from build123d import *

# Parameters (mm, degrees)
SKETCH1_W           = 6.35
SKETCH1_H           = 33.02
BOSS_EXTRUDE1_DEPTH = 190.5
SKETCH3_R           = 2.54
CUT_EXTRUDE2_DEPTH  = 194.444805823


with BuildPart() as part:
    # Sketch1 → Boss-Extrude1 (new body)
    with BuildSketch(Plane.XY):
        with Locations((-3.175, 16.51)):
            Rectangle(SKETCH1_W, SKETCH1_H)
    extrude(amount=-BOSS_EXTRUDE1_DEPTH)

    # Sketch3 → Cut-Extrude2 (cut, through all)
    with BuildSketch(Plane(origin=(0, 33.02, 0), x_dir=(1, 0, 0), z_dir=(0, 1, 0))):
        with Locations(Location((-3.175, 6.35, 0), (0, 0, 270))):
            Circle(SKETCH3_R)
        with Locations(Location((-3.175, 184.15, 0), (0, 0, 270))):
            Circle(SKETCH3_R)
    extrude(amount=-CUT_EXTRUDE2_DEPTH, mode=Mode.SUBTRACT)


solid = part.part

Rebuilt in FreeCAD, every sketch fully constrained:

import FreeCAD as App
import Part
import Sketcher

V = App.Vector
Q = App.Units.Quantity

doc = App.newDocument("Part")
body = doc.addObject("PartDesign::Body", "Body")

sketch1 = body.newObject("Sketcher::SketchObject", "Sketch")
sketch1.AttachmentSupport = (doc.getObject("XY_Plane"), [""])
sketch1.MapMode = "FlatFace"
sketch1.addGeometry([
    Part.LineSegment(V(-6, 33, 0), V(-6, 0, 0)),
    Part.LineSegment(V(-6, 0, 0), V(0, 0, 0)),
    Part.LineSegment(V(0, 0, 0), V(0, 33, 0)),
    Part.LineSegment(V(0, 33, 0), V(-6, 33, 0)),
], False)
sketch1.addConstraint([
    Sketcher.Constraint("Coincident", 0, 2, 1, 1),
    Sketcher.Constraint("Coincident", 1, 2, 2, 1),
    Sketcher.Constraint("Coincident", 2, 2, 3, 1),
    Sketcher.Constraint("Coincident", 3, 2, 0, 1),
    Sketcher.Constraint("Vertical", 0),
    Sketcher.Constraint("Horizontal", 1),
    Sketcher.Constraint("Vertical", 2),
    Sketcher.Constraint("Horizontal", 3),
    Sketcher.Constraint("Coincident", 1, 2, -1, 1),
    Sketcher.Constraint("DistanceY", 0, 2, 0, 1, Q("1.3 in")),
    Sketcher.Constraint("DistanceX", 1, 1, 1, 2, Q("0.25 in")),
])
pad1 = body.newObject("PartDesign::Pad", "Pad")
pad1.Profile = sketch1
pad1.Length = Q("7.5 in")
pad1.Reversed = True

sketch2 = body.newObject("Sketcher::SketchObject", "Sketch001")
sketch2.AttachmentSupport = (doc.getObject("XZ_Plane"), [""])
sketch2.MapMode = "FlatFace"
sketch2.AttachmentOffset = App.Placement(V(0, 0, -1.3 * 25.4), App.Rotation())
sketch2.addGeometry([
    Part.Circle(V(-3.2, -6.3, 0), V(0, 0, 1), 2.5),
    Part.Circle(V(-3.2, -184.2, 0), V(0, 0, 1), 2.5),
], False)
sketch2.addConstraint([
    Sketcher.Constraint("Equal", 0, 1),
    Sketcher.Constraint("Vertical", 0, 3, 1, 3),
    Sketcher.Constraint("Diameter", 0, Q("0.2 in")),
    Sketcher.Constraint("DistanceY", 1, 3, 0, 3, Q("7 in")),
    Sketcher.Constraint("DistanceY", 0, 3, -1, 1, Q("0.25 in")),
    Sketcher.Constraint("DistanceX", 0, 3, -1, 1, Q("0.125 in")),
])
pocket1 = body.newObject("PartDesign::Pocket", "Pocket")
pocket1.Profile = sketch2
pocket1.Type = "ThroughAll"
pocket1.Reversed = True

doc.recompute()
